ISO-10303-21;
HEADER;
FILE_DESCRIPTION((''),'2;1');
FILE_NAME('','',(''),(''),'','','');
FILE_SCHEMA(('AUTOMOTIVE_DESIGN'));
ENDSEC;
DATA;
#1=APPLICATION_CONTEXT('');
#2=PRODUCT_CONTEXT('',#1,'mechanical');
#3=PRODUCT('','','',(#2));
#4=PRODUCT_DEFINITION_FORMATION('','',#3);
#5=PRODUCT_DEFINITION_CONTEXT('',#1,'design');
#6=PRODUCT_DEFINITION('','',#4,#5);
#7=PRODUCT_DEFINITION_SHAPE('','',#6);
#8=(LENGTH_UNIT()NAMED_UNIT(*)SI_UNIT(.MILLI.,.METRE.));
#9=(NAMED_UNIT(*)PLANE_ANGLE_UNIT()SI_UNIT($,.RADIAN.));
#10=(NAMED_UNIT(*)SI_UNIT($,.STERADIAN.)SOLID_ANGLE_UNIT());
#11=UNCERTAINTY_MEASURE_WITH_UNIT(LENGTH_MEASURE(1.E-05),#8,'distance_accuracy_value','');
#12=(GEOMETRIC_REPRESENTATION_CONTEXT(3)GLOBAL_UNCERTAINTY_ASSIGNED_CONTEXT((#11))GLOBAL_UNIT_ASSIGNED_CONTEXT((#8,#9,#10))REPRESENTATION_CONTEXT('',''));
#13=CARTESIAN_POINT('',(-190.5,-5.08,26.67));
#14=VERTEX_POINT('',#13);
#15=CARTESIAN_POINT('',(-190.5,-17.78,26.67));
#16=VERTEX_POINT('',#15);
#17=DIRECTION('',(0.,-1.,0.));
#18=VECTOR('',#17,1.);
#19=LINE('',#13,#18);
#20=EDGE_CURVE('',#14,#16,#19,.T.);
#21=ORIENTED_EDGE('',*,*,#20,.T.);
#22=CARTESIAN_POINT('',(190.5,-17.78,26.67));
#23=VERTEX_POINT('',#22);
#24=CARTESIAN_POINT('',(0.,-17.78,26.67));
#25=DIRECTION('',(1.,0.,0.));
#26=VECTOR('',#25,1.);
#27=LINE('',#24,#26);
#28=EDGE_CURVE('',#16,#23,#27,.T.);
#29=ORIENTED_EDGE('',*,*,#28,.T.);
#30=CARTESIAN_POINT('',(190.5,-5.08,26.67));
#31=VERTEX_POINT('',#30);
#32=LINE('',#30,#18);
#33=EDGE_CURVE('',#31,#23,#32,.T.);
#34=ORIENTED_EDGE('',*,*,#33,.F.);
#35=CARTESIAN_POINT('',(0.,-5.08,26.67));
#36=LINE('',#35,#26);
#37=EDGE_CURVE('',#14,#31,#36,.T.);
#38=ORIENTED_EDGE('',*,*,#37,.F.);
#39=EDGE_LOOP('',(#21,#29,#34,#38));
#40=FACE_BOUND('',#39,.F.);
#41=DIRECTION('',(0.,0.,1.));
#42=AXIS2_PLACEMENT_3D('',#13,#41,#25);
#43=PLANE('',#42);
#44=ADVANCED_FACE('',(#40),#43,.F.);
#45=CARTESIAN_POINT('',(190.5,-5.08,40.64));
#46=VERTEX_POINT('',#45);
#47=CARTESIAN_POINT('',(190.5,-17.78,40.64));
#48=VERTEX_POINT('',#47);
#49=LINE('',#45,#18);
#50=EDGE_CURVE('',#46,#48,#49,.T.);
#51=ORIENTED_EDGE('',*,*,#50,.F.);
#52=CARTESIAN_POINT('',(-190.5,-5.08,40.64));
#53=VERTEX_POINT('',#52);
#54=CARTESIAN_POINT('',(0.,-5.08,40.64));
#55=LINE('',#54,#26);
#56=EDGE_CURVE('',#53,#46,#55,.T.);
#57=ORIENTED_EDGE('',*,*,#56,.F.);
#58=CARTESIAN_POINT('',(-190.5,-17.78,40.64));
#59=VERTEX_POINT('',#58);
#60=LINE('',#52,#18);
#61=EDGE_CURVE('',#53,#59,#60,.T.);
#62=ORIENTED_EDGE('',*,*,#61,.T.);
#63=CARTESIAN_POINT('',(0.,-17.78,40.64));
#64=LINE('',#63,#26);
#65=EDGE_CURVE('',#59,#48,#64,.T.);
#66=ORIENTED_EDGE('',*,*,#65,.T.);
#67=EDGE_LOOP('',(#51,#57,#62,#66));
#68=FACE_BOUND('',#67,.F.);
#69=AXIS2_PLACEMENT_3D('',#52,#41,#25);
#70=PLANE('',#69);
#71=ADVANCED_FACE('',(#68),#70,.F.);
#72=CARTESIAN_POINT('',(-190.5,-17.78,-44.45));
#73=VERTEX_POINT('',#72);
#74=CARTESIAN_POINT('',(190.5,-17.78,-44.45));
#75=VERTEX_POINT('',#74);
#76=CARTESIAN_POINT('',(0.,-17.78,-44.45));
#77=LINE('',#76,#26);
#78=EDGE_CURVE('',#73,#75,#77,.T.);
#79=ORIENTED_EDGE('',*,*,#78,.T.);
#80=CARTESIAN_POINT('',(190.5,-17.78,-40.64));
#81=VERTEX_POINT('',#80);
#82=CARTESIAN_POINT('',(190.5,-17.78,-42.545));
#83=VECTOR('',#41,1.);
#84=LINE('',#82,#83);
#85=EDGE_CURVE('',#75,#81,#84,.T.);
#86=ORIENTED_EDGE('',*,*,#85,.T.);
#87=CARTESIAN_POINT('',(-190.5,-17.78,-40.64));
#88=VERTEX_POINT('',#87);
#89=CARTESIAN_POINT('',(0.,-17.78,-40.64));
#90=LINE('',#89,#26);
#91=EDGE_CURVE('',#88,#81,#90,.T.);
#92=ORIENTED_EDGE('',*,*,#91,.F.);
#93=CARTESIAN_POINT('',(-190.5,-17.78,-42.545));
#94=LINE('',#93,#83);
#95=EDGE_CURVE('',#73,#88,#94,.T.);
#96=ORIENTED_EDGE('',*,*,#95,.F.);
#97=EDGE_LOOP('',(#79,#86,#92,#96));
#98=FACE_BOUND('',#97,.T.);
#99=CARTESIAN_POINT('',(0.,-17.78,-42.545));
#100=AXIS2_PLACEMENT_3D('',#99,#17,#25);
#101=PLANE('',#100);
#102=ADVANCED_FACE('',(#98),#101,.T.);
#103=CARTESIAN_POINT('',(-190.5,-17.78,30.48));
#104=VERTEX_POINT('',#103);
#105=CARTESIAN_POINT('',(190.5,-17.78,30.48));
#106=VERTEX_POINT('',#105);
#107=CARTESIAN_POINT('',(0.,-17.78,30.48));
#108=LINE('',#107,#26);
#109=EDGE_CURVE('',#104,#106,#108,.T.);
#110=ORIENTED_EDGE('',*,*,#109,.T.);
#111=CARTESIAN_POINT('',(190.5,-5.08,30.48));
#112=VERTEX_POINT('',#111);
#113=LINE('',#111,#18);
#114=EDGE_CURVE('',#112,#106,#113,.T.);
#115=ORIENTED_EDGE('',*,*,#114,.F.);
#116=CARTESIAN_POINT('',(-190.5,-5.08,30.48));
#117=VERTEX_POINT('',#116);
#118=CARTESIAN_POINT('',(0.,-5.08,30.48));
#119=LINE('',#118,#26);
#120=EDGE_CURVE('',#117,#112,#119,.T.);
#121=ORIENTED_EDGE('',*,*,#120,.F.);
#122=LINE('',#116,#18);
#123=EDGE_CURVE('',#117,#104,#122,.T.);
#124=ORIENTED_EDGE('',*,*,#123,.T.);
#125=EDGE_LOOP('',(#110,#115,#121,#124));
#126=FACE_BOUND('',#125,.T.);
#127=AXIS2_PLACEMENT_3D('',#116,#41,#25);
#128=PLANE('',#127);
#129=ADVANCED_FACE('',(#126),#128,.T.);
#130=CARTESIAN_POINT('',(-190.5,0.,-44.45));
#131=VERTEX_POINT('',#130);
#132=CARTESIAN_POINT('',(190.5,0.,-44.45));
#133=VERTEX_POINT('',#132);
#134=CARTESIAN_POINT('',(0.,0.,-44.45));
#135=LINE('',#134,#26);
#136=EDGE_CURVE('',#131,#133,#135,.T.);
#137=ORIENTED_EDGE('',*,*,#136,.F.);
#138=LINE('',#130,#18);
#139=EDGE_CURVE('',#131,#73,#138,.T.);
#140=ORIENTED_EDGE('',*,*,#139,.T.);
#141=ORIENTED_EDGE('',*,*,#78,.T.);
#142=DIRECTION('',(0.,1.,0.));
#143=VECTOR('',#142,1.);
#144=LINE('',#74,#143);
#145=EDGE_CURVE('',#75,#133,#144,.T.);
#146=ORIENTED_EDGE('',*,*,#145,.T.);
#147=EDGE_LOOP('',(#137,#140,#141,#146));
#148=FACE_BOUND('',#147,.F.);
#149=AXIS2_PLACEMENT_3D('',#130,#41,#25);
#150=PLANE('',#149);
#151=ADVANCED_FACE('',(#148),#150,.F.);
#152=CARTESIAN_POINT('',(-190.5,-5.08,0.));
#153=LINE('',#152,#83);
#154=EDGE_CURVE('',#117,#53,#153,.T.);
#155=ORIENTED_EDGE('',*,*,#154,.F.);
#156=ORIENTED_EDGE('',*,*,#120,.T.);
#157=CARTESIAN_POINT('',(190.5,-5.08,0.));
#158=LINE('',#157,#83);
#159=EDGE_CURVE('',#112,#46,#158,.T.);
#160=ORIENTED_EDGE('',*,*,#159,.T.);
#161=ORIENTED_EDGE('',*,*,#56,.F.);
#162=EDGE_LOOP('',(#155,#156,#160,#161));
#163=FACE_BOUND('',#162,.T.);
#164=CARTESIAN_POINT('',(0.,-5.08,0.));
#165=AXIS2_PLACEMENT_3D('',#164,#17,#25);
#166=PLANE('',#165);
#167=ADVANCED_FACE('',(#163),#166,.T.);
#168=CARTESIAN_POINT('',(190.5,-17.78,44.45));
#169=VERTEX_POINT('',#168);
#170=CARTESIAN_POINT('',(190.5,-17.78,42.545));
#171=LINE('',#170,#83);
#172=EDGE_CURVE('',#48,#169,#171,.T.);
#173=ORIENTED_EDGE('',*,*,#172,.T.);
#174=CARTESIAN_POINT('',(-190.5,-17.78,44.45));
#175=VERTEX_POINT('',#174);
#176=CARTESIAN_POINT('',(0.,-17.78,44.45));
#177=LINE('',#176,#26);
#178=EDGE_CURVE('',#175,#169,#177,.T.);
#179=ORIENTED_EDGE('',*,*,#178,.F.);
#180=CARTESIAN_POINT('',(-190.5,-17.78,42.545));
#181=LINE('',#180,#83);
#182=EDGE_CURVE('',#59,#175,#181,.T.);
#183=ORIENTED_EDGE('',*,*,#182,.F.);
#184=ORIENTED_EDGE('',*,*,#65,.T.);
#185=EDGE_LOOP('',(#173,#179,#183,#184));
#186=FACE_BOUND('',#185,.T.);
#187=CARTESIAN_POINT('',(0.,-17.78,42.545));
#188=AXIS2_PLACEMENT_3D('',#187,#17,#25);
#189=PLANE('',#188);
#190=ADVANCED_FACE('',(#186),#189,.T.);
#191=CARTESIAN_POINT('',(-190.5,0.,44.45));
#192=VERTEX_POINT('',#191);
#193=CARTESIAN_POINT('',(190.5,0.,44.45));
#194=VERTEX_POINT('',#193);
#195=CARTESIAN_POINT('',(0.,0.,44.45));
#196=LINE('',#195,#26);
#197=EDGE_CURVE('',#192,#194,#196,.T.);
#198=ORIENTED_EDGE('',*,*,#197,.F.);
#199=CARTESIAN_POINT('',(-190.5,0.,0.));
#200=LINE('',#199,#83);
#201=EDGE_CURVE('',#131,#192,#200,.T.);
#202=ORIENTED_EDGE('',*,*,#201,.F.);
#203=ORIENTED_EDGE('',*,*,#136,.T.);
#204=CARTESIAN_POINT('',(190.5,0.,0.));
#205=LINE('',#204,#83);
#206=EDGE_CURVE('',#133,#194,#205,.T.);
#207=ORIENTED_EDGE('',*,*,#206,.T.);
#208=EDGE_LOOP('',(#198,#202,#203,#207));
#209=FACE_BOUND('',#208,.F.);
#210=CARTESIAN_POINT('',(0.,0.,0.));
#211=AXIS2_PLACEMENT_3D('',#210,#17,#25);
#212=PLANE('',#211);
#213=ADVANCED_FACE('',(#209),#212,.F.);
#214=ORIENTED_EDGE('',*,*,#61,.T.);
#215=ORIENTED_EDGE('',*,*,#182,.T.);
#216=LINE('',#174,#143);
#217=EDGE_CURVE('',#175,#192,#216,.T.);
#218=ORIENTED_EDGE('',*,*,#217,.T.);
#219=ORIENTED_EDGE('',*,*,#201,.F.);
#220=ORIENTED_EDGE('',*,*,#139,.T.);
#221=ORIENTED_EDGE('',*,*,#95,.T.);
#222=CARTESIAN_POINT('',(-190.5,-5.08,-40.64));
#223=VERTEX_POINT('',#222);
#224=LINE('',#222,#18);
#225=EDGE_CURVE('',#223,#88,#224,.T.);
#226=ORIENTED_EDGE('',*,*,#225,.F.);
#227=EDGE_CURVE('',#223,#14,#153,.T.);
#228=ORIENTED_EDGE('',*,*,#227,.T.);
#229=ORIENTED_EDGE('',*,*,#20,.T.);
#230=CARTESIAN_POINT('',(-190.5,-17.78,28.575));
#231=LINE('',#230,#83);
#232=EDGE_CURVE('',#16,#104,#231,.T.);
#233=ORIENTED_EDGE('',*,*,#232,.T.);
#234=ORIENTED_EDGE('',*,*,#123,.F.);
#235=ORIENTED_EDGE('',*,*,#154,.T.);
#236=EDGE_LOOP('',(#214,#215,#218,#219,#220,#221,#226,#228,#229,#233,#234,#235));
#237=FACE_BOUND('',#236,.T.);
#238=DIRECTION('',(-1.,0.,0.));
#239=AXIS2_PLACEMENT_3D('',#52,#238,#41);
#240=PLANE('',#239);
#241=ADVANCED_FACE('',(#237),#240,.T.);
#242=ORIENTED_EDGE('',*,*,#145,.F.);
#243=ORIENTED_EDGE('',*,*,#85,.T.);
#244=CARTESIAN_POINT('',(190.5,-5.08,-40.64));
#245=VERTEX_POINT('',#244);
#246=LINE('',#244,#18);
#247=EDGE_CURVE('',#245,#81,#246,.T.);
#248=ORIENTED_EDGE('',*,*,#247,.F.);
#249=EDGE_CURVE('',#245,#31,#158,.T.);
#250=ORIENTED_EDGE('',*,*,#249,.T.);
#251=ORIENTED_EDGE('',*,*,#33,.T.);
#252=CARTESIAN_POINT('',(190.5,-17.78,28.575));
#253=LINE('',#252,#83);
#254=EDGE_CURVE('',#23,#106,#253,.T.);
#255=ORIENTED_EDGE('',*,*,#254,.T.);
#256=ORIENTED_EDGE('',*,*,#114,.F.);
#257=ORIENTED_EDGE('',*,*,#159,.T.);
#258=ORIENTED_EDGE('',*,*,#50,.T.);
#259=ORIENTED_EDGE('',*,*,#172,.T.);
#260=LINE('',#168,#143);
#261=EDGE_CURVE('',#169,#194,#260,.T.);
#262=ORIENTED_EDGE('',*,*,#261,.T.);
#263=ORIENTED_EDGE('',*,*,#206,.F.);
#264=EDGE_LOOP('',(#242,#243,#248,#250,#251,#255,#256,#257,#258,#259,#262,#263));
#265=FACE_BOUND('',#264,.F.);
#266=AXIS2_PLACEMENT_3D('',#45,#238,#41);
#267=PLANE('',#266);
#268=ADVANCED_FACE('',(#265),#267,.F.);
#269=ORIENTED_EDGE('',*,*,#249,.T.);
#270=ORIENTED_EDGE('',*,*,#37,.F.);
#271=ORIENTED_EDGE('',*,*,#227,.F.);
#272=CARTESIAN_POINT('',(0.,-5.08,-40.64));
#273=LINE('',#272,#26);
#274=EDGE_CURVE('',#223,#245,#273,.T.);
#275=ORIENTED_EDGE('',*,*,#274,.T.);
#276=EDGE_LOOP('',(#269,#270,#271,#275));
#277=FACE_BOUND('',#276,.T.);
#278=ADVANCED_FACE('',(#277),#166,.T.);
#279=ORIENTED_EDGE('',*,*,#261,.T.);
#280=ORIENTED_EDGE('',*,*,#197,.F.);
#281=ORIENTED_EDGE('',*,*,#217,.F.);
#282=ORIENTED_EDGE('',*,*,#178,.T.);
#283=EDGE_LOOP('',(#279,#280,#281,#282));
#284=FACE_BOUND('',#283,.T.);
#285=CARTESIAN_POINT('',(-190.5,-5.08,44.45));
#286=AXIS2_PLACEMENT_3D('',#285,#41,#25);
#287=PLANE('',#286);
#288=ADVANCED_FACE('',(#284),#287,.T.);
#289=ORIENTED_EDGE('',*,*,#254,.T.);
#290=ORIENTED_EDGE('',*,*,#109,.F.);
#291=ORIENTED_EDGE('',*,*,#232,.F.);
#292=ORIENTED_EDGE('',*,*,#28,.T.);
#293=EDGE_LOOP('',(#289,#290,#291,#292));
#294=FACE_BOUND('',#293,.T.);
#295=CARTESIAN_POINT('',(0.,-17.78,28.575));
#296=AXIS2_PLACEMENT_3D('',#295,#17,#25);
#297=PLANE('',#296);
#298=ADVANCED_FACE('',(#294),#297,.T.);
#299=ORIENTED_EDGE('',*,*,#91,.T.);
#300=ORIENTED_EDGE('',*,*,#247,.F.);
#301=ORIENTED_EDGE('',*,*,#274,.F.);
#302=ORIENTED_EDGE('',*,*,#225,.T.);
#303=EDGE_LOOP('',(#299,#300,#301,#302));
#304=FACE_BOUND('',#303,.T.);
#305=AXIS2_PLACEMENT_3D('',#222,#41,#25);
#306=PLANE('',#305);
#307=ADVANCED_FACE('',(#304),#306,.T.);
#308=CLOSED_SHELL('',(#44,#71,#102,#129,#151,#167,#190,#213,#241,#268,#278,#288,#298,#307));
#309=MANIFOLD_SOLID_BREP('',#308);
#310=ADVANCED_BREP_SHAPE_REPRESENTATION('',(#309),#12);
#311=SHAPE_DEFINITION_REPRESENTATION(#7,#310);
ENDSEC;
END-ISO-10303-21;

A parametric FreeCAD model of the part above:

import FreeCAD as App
import Part
import Sketcher

V = App.Vector
Q = App.Units.Quantity


def add_polygon(sketch, points):
    """Adds a closed chain of lines whose ends are joined by coincident constraints."""
    first, n = sketch.GeometryCount, len(points)
    for a, b in zip(points, points[1:] + points[:1]):
        sketch.addGeometry(Part.LineSegment(App.Vector(*a, 0), App.Vector(*b, 0)), False)
    for i in range(n):
        sketch.addConstraint(Sketcher.Constraint("Coincident", first + i, 2, first + (i + 1) % n, 1))

doc = App.newDocument("Part")
params = doc.addObject("Spreadsheet::Sheet", "Params")
for row, (alias, value) in enumerate([
    ("sketch1_width", "15 in"),
    ("sketch1_height", "3.5 in"),
    ("pad1_length", "0.2 in"),
    ("sketch2_width", "15 in"),
    ("sketch2_height", "0.15 in"),
    ("pad2_length", "0.5 in"),
    ("sketch3_width", "15 in"),
    ("sketch3_height", "0.15 in"),
    ("pad3_length", "0.5 in"),
], start=1):
    params.set(f"A{row}", alias)
    params.set(f"B{row}", "=" + value)
    params.setAlias(f"B{row}", alias)

body = doc.addObject("PartDesign::Body", "Body")

sketch1 = body.newObject("Sketcher::SketchObject", "Sketch")
sketch1.AttachmentSupport = (doc.getObject("XZ_Plane"), [""])
sketch1.MapMode = "FlatFace"
add_polygon(sketch1, [(-190, 44), (-190, -44), (190, -44), (190, 44)])
sketch1.addConstraint([
    Sketcher.Constraint("Vertical", 0),
    Sketcher.Constraint("Horizontal", 1),
    Sketcher.Constraint("Vertical", 2),
    Sketcher.Constraint("Horizontal", 3),
    Sketcher.Constraint("Symmetric", 0, 2, 2, 2, -1, 1),
    Sketcher.Constraint("DistanceX", 1, 1, 1, 2, Q("15 in")),
    Sketcher.Constraint("DistanceY", 0, 2, 0, 1, Q("3.5 in")),
])
sketch1.setExpression("Constraints[9]", "Params.sketch1_width")
sketch1.setExpression("Constraints[10]", "Params.sketch1_height")
pad1 = body.newObject("PartDesign::Pad", "Pad")
pad1.Profile = sketch1
pad1.setExpression("Length", "Params.pad1_length")

sketch2 = body.newObject("Sketcher::SketchObject", "Sketch001")
sketch2.AttachmentSupport = (doc.getObject("XZ_Plane"), [""])
sketch2.MapMode = "FlatFace"
sketch2.AttachmentOffset = App.Placement(V(0, 0, 0.2 * 25.4), App.Rotation())
add_polygon(sketch2, [(-190.5, 44.5), (-190.5, 40.6), (190.5, 40.6), (190.5, 44.5)])
add_polygon(sketch2, [(-190.5, -40.6), (-190.5, -44.5), (190.5, -44.5), (190.5, -40.6)])
sketch2.addConstraint([
    Sketcher.Constraint("Vertical", 0),
    Sketcher.Constraint("Horizontal", 1),
    Sketcher.Constraint("Vertical", 2),
    Sketcher.Constraint("Horizontal", 3),
    Sketcher.Constraint("Vertical", 4),
    Sketcher.Constraint("Horizontal", 5),
    Sketcher.Constraint("Vertical", 6),
    Sketcher.Constraint("Horizontal", 7),
    Sketcher.Constraint("Symmetric", 2, 2, 4, 2, -1, 1),
    Sketcher.Constraint("Symmetric", 0, 2, 6, 2, -1, 1),
    Sketcher.Constraint("Vertical", 3, 2, 4, 2),
    Sketcher.Constraint("DistanceX", 1, 1, 1, 2, Q("15 in")),
    Sketcher.Constraint("DistanceY", 0, 2, 0, 1, Q("0.15 in")),
    Sketcher.Constraint("DistanceY", -1, 1, 0, 2, Q("1.6 in")),
])
sketch2.setExpression("Constraints[19]", "Params.sketch2_width")
sketch2.setExpression("Constraints[20]", "Params.sketch2_height")
pad2 = body.newObject("PartDesign::Pad", "Pad001")
pad2.Profile = sketch2
pad2.setExpression("Length", "Params.pad2_length")

sketch3 = body.newObject("Sketcher::SketchObject", "Sketch002")
sketch3.AttachmentSupport = (doc.getObject("XZ_Plane"), [""])
sketch3.MapMode = "FlatFace"
sketch3.AttachmentOffset = App.Placement(V(0, 0, 0.2 * 25.4), App.Rotation())
add_polygon(sketch3, [(-190.5, 30.5), (-190.5, 26.7), (190.5, 26.7), (190.5, 30.5)])
sketch3.addConstraint([
    Sketcher.Constraint("Vertical", 0),
    Sketcher.Constraint("Horizontal", 1),
    Sketcher.Constraint("Vertical", 2),
    Sketcher.Constraint("Horizontal", 3),
    Sketcher.Constraint("DistanceX", 1, 1, 1, 2, Q("15 in")),
    Sketcher.Constraint("DistanceY", 0, 2, 0, 1, Q("0.15 in")),
    Sketcher.Constraint("DistanceX", 0, 2, -1, 1, Q("7.5 in")),
    Sketcher.Constraint("DistanceY", -1, 1, 2, 2, Q("1.2 in")),
])
sketch3.setExpression("Constraints[8]", "Params.sketch3_width")
sketch3.setExpression("Constraints[9]", "Params.sketch3_height")
pad3 = body.newObject("PartDesign::Pad", "Pad002")
pad3.Profile = sketch3
pad3.setExpression("Length", "Params.pad3_length")

doc.recompute()
